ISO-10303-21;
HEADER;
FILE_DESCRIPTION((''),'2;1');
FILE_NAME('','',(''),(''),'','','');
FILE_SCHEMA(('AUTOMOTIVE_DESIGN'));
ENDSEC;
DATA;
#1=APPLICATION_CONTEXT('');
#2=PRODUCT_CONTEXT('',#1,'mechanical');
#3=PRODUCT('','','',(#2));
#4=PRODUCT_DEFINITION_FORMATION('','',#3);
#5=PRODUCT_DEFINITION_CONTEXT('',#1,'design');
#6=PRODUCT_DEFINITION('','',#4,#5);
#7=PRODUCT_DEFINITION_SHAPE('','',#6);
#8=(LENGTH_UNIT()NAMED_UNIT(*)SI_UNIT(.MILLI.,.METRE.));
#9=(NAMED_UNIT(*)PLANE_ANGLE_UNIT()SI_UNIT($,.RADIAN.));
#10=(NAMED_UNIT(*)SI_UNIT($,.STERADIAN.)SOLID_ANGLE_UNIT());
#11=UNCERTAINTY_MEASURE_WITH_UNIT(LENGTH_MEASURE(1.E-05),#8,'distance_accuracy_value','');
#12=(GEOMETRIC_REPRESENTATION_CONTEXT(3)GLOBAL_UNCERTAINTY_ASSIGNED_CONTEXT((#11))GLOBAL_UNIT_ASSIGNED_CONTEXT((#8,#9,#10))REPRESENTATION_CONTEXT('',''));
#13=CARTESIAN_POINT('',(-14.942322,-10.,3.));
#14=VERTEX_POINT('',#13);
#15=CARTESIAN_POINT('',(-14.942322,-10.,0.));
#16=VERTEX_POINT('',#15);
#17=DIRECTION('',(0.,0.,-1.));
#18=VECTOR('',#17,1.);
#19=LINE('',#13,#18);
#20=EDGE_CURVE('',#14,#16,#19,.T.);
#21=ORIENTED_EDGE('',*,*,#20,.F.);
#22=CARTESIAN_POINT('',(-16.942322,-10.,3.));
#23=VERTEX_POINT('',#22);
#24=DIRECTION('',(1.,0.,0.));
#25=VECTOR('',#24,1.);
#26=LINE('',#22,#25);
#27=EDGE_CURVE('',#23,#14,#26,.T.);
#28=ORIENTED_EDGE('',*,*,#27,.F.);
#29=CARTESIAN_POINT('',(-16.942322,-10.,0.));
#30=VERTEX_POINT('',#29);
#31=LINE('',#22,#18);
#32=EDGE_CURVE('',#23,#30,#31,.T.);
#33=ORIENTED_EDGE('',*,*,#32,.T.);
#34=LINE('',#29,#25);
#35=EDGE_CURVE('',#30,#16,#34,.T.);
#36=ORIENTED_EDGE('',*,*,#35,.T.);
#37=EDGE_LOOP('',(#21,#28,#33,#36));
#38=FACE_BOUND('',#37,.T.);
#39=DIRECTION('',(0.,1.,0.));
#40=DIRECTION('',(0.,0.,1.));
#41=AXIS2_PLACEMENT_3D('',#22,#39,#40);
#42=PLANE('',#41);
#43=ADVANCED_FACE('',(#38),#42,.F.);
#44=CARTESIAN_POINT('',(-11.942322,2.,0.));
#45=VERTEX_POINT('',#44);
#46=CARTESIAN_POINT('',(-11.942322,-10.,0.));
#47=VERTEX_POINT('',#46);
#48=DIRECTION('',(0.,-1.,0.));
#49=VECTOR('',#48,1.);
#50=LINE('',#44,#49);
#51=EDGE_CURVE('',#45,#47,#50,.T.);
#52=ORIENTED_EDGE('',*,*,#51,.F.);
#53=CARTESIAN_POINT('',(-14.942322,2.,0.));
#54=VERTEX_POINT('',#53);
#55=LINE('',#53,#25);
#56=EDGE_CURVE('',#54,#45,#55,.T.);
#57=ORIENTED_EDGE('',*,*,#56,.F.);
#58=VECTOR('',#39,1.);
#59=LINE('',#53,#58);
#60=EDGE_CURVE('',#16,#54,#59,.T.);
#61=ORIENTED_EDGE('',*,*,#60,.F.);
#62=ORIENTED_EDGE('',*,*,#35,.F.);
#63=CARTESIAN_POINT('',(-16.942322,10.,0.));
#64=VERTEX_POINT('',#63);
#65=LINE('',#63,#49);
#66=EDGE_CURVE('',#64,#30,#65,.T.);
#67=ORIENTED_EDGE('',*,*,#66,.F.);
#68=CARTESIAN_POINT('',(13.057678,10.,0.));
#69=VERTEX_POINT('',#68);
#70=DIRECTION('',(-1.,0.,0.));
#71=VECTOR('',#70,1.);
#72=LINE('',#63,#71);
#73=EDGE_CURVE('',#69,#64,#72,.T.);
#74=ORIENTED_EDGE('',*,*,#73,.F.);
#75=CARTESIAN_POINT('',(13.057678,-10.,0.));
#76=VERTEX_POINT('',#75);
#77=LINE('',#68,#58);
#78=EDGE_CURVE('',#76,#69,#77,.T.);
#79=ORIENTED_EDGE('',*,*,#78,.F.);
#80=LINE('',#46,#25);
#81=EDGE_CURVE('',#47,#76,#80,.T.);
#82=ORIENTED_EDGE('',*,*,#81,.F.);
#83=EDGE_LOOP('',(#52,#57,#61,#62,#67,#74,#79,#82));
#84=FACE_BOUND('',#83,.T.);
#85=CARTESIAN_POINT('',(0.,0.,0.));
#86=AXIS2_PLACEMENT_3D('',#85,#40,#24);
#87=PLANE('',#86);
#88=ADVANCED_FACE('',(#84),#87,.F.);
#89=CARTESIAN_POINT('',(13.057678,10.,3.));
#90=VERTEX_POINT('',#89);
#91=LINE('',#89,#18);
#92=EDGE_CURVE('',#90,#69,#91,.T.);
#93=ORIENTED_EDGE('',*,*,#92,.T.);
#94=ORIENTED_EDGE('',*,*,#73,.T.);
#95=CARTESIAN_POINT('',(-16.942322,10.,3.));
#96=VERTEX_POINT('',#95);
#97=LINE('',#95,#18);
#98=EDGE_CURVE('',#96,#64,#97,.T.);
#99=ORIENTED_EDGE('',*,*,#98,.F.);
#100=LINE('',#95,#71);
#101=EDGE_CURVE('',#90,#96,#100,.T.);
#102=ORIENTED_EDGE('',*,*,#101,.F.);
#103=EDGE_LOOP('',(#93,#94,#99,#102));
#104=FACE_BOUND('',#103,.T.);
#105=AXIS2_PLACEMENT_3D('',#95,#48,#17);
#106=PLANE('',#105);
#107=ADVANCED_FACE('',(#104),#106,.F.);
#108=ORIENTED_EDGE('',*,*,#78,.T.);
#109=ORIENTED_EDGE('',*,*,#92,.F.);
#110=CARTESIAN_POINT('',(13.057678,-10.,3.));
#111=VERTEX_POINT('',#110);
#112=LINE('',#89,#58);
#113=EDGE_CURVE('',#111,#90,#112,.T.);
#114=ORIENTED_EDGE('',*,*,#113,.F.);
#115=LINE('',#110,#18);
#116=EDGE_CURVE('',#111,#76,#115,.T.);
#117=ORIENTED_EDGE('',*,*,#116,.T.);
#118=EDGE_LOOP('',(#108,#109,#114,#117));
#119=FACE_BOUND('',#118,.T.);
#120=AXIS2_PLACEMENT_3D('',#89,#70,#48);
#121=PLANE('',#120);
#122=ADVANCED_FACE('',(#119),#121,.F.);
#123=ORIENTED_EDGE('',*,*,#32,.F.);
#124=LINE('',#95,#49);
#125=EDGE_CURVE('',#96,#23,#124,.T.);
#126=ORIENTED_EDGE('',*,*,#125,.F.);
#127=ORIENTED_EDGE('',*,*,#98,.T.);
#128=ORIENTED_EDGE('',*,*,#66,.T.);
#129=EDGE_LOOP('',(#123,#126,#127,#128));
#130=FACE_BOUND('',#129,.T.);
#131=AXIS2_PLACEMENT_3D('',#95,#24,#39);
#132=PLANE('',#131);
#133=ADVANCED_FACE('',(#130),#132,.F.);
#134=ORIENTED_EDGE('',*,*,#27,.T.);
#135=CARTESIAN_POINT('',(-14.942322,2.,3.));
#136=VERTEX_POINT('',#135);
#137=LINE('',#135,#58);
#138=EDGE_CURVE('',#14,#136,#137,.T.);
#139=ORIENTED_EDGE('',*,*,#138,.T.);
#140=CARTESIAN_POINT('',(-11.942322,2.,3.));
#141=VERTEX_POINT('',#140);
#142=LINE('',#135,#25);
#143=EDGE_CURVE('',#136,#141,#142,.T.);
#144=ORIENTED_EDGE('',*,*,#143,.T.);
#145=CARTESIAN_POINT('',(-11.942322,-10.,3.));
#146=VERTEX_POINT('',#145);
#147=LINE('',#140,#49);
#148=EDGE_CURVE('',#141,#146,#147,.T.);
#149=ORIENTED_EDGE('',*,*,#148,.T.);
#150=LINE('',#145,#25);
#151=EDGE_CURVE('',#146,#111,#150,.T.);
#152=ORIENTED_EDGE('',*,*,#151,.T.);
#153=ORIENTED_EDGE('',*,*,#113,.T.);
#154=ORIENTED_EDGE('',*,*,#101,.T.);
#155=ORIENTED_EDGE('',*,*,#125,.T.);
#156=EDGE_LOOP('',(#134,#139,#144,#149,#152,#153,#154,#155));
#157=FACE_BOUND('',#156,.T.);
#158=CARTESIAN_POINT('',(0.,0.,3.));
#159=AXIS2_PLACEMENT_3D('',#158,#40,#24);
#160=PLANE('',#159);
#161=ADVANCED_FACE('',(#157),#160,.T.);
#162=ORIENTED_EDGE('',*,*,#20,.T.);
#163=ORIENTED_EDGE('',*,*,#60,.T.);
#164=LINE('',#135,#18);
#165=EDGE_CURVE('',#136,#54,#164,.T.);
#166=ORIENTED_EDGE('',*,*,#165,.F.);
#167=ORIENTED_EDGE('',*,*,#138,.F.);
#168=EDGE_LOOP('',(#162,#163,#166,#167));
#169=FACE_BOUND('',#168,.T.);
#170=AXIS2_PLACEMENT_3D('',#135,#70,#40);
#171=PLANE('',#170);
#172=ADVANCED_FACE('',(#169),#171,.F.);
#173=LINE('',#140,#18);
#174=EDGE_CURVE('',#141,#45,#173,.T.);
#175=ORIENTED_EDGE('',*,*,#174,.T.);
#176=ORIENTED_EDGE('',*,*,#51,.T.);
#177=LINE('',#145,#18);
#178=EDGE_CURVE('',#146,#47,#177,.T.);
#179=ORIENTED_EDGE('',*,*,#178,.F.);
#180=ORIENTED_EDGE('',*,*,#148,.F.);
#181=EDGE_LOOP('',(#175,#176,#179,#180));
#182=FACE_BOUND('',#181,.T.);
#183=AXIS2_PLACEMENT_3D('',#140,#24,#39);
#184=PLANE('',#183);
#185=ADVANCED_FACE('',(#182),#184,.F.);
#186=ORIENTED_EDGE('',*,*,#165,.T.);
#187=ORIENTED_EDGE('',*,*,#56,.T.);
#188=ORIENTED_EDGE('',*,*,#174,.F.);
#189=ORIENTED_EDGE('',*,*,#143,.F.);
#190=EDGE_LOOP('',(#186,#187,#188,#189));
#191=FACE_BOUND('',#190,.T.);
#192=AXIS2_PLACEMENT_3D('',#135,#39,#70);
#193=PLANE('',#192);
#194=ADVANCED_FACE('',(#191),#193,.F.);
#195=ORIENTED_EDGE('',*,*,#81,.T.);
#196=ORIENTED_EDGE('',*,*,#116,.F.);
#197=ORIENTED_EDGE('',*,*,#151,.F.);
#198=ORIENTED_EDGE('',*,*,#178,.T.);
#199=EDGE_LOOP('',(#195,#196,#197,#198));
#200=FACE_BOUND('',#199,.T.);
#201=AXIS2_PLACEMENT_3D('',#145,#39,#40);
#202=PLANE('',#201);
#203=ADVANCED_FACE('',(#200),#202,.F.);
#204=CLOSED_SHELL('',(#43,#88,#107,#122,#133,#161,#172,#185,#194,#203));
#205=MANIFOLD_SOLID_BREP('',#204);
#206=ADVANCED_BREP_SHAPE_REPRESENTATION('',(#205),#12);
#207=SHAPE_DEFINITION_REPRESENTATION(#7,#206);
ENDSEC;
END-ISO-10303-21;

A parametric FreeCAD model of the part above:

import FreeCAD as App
import Part
import Sketcher

V = App.Vector

doc = App.newDocument("Part")
params = doc.addObject("Spreadsheet::Sheet", "Params")
for row, (alias, value) in enumerate([
    ("sketch1_width", "25 mm"),
    ("sketch1_width2", "30 mm"),
    ("sketch1_width3", "2 mm"),
    ("sketch1_height", "20 mm"),
    ("sketch1_height2", "12 mm"),
    ("pad1_length", "3 mm"),
], start=1):
    params.set(f"A{row}", alias)
    params.set(f"B{row}", "=" + value)
    params.setAlias(f"B{row}", alias)

body = doc.addObject("PartDesign::Body", "Body")

# Sketch on XY plane
sketch1 = body.newObject("Sketcher::SketchObject", "Sketch")
sketch1.AttachmentSupport = (doc.getObject("XY_Plane"), [""])
sketch1.MapMode = "FlatFace"
sketch1.addGeometry(Part.LineSegment(V(-11.9, -10, 0), V(13.1, -10, 0)), False)
sketch1.addGeometry(Part.LineSegment(V(13.1, -10, 0), V(13.1, 10, 0)), False)
sketch1.addGeometry(Part.LineSegment(V(13.1, 10, 0), V(-16.9, 10, 0)), False)
sketch1.addGeometry(Part.LineSegment(V(-16.9, 10, 0), V(-16.9, -10, 0)), False)
sketch1.addGeometry(Part.LineSegment(V(-16.9, -10, 0), V(-14.9, -10, 0)), False)
sketch1.addGeometry(Part.LineSegment(V(-14.9, -10, 0), V(-14.9, 2, 0)), False)
sketch1.addGeometry(Part.LineSegment(V(-14.9, 2, 0), V(-11.9, 2, 0)), False)
sketch1.addGeometry(Part.LineSegment(V(-11.9, 2, 0), V(-11.9, -10, 0)), False)
sketch1.addConstraint(Sketcher.Constraint("Coincident", 0, 2, 1, 1))
sketch1.addConstraint(Sketcher.Constraint("Coincident", 1, 2, 2, 1))
sketch1.addConstraint(Sketcher.Constraint("Coincident", 2, 2, 3, 1))
sketch1.addConstraint(Sketcher.Constraint("Coincident", 3, 2, 4, 1))
sketch1.addConstraint(Sketcher.Constraint("Coincident", 4, 2, 5, 1))
sketch1.addConstraint(Sketcher.Constraint("Coincident", 5, 2, 6, 1))
sketch1.addConstraint(Sketcher.Constraint("Coincident", 6, 2, 7, 1))
sketch1.addConstraint(Sketcher.Constraint("Coincident", 7, 2, 0, 1))
sketch1.addConstraint(Sketcher.Constraint("Horizontal", 0))
sketch1.addConstraint(Sketcher.Constraint("Vertical", 1))
sketch1.addConstraint(Sketcher.Constraint("Horizontal", 2))
sketch1.addConstraint(Sketcher.Constraint("Vertical", 3))
sketch1.addConstraint(Sketcher.Constraint("Horizontal", 4))
sketch1.addConstraint(Sketcher.Constraint("Vertical", 5))
sketch1.addConstraint(Sketcher.Constraint("Horizontal", 6))
sketch1.addConstraint(Sketcher.Constraint("Vertical", 7))
sketch1.addConstraint(Sketcher.Constraint("Horizontal", 0, 2, 3, 2))
sketch1.addConstraint(Sketcher.Constraint("DistanceX", 0, 1, 0, 2, 25.0))
sketch1.addConstraint(Sketcher.Constraint("DistanceX", 2, 2, 2, 1, 30.0))
sketch1.addConstraint(Sketcher.Constraint("DistanceX", 4, 1, 4, 2, 2.0))
sketch1.addConstraint(Sketcher.Constraint("DistanceY", 1, 1, 1, 2, 20.0))
sketch1.addConstraint(Sketcher.Constraint("DistanceY", 5, 1, 5, 2, 12.0))
sketch1.addConstraint(Sketcher.Constraint("DistanceY", 0, 2, -1, 1, 10.0))
sketch1.addConstraint(Sketcher.Constraint("DistanceX", -1, 1, 0, 2, 13.057678))
sketch1.setExpression("Constraints[17]", "Params.sketch1_width")
sketch1.setExpression("Constraints[18]", "Params.sketch1_width2")
sketch1.setExpression("Constraints[19]", "Params.sketch1_width3")
sketch1.setExpression("Constraints[20]", "Params.sketch1_height")
sketch1.setExpression("Constraints[21]", "Params.sketch1_height2")
pad1 = body.newObject("PartDesign::Pad", "Pad")
pad1.Profile = sketch1
pad1.setExpression("Length", "Params.pad1_length")

doc.recompute()
